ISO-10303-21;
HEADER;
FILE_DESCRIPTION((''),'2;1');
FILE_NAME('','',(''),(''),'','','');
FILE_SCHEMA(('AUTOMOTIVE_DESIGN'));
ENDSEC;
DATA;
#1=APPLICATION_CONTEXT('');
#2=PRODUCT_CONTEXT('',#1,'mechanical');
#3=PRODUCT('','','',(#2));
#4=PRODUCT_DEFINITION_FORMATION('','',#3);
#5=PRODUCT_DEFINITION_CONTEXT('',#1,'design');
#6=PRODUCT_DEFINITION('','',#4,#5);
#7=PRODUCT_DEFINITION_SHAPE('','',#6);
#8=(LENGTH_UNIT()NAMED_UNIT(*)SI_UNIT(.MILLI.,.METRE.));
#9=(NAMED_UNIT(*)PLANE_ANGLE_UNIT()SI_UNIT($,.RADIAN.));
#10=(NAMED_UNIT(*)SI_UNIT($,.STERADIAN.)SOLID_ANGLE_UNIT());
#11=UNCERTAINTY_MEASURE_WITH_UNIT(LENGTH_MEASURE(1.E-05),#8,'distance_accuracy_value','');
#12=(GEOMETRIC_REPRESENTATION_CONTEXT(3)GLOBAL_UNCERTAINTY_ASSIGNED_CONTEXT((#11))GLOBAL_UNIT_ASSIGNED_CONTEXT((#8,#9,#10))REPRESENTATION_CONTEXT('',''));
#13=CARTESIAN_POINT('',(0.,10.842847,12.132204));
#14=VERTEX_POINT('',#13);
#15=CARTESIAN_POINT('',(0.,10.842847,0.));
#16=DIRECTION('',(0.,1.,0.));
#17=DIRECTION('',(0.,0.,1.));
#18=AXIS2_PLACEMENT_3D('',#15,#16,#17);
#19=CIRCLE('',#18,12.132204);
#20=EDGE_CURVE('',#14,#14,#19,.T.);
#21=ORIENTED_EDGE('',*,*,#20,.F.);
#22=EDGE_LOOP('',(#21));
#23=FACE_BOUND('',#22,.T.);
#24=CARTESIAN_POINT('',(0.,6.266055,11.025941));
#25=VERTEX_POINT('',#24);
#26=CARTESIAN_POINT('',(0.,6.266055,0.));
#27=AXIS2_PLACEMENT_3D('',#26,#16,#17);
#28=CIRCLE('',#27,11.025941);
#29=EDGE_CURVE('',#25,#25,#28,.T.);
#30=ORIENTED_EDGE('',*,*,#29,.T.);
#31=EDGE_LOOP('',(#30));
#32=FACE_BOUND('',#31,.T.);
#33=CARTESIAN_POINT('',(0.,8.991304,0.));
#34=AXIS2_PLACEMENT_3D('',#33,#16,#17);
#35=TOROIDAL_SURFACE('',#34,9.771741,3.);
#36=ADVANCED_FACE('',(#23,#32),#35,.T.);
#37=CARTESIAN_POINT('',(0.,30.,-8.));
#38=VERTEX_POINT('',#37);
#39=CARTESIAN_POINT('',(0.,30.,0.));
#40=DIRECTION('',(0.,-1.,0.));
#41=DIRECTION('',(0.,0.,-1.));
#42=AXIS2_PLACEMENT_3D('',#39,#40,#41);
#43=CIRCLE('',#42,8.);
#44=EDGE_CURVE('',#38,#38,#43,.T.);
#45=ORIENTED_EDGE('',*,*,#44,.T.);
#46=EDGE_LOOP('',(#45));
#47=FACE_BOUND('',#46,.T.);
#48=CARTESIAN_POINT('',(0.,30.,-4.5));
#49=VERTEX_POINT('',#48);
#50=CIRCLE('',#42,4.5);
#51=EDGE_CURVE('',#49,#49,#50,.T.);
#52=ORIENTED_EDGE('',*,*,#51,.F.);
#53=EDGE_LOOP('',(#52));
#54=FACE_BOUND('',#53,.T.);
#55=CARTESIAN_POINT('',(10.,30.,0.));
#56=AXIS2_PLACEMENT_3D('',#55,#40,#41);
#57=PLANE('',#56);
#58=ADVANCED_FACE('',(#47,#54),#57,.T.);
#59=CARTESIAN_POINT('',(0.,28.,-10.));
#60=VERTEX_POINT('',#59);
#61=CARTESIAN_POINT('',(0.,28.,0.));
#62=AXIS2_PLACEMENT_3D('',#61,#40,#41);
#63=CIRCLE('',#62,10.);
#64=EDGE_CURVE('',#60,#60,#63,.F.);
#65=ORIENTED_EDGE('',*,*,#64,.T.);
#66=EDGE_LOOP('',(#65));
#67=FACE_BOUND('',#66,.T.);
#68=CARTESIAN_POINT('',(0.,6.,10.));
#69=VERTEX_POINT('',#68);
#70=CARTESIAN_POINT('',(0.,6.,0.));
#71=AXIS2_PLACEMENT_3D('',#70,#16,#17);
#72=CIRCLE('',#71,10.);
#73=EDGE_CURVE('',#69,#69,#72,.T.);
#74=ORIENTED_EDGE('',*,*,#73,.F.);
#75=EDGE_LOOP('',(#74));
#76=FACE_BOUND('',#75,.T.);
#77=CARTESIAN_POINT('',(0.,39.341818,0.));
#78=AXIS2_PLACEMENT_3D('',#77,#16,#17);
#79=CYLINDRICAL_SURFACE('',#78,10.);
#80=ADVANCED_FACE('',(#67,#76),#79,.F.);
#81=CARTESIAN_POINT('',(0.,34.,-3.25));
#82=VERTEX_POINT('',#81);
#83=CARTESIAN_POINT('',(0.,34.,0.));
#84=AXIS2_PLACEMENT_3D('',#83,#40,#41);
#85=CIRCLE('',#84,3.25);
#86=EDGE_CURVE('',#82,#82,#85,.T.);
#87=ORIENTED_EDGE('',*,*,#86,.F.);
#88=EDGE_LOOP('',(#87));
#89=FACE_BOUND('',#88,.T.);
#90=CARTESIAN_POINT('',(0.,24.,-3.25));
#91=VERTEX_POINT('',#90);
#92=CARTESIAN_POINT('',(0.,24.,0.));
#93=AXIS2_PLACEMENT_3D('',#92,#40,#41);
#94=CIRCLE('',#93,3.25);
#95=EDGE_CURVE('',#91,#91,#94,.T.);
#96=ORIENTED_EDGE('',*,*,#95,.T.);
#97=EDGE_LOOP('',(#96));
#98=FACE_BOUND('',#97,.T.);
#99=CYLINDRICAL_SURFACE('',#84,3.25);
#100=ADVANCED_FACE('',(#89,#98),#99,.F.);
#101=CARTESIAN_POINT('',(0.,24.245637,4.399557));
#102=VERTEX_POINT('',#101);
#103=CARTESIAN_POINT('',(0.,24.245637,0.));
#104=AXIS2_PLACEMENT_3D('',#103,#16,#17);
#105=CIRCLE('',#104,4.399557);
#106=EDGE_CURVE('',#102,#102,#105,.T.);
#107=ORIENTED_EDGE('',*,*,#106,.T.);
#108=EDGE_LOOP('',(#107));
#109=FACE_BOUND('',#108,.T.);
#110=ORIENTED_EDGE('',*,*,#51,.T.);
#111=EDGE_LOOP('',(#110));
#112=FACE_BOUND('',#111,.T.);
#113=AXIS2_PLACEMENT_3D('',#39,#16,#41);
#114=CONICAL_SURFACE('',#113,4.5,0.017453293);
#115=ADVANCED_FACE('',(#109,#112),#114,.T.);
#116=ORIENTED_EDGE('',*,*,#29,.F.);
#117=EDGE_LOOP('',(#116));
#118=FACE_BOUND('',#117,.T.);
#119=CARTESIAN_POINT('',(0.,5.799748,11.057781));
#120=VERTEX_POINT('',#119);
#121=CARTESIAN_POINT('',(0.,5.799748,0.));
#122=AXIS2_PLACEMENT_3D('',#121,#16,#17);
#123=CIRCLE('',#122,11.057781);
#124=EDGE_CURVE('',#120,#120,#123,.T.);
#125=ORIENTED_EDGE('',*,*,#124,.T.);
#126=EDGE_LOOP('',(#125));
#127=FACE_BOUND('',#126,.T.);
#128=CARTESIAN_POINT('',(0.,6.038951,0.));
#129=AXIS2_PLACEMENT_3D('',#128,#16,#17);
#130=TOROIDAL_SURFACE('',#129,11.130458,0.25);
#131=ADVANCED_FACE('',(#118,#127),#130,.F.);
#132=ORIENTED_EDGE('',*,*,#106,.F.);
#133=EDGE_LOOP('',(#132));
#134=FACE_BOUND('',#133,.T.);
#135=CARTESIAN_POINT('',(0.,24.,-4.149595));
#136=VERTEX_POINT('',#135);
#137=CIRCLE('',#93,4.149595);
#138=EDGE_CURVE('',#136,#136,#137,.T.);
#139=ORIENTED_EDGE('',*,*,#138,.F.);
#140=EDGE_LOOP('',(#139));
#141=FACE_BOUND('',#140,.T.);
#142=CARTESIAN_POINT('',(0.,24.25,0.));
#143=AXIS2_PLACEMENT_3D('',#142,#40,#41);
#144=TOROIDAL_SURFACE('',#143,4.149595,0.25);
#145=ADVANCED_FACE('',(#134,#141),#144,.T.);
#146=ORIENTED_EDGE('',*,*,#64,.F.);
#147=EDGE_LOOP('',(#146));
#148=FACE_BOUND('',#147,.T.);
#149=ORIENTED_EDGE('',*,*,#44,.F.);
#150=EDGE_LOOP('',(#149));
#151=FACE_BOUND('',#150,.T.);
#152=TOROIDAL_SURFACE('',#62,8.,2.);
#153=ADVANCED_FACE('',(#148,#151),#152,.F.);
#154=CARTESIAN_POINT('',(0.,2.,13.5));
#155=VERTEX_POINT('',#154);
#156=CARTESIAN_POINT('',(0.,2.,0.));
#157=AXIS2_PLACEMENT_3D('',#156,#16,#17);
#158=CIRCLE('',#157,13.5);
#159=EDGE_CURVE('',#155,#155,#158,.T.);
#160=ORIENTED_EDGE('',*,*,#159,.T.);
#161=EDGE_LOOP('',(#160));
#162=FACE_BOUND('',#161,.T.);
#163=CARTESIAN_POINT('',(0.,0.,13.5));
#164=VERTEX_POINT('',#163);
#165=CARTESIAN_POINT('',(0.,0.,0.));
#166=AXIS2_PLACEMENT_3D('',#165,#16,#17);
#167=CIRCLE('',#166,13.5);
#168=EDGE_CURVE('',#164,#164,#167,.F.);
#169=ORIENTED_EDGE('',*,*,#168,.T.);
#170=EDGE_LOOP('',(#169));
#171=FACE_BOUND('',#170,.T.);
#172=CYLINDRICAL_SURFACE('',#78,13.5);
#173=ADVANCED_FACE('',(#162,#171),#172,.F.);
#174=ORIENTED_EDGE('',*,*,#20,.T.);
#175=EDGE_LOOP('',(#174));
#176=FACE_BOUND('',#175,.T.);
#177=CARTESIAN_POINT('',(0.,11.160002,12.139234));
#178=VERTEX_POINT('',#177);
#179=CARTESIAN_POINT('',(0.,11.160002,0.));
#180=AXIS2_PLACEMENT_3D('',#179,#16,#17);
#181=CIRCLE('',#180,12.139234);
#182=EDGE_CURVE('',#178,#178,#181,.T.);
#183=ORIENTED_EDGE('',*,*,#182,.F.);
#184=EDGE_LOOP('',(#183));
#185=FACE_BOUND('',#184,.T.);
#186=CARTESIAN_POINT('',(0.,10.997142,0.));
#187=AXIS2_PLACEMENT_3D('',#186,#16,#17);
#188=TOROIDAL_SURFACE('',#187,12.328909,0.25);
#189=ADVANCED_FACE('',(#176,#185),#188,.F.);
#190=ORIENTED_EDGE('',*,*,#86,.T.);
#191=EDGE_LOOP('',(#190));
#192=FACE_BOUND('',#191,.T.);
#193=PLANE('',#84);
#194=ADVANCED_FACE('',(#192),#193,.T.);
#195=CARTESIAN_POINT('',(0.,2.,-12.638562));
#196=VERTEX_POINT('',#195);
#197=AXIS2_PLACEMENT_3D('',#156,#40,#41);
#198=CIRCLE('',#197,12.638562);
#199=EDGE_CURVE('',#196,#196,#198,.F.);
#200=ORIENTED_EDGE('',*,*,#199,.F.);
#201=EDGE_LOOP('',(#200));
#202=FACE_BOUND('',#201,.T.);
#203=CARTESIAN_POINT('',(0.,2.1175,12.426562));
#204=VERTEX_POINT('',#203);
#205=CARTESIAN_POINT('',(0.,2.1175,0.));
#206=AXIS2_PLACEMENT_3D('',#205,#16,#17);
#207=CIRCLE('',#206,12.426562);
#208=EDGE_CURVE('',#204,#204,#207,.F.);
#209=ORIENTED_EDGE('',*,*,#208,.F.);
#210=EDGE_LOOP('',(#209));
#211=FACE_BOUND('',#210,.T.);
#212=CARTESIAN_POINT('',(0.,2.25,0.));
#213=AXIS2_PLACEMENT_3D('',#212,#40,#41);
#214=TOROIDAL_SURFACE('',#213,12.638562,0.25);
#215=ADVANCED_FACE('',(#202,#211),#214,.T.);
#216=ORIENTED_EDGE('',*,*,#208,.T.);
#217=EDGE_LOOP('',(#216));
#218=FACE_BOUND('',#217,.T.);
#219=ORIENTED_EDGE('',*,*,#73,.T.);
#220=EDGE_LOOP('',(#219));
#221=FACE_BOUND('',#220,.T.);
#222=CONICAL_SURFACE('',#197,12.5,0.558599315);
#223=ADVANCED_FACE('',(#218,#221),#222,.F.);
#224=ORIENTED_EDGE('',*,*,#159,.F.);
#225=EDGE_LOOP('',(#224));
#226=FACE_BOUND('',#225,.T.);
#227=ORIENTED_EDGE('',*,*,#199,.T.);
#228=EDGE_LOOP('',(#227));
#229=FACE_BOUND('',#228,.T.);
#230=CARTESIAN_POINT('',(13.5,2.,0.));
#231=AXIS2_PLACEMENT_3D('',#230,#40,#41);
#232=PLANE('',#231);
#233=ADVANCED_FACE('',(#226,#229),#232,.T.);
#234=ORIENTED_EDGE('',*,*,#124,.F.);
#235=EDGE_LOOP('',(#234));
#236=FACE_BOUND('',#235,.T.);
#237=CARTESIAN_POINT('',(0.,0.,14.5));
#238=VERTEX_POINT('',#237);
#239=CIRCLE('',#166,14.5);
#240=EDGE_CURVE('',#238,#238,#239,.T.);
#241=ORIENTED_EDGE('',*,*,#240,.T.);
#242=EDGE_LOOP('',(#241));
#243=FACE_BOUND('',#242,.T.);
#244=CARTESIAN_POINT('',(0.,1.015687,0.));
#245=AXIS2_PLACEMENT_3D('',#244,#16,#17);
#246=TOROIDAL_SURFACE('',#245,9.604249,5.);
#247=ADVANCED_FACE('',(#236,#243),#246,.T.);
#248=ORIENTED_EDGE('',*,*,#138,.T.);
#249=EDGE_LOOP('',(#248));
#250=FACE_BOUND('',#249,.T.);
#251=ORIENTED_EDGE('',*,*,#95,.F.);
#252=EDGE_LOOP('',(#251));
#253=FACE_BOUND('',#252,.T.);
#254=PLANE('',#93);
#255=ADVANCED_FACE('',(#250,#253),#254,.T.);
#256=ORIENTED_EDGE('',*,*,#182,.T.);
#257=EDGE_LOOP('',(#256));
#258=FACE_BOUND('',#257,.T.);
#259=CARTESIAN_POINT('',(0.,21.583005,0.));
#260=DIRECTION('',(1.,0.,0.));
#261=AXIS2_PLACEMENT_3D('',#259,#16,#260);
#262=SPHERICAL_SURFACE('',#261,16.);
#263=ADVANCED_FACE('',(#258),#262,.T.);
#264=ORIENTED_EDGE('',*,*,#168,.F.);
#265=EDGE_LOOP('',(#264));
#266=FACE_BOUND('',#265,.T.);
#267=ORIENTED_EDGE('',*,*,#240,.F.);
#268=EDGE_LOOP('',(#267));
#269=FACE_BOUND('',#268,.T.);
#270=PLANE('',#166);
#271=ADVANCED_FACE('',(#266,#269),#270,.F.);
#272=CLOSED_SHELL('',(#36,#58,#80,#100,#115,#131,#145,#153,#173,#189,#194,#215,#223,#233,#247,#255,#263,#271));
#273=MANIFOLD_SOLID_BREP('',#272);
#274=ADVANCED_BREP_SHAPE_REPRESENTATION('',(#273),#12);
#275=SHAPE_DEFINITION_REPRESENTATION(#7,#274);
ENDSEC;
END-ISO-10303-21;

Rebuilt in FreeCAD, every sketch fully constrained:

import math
import FreeCAD as App
import Part
import Sketcher
Q = App.Units.Quantity


def edges_at(feature, points):
    """Names of the edges that pass closest to the given points."""
    edges = feature.Shape.Edges
    near = lambda p: min(range(len(edges)), key=lambda i: edges[i].distToShape(Part.Vertex(*p))[0])
    return sorted({f"Edge{near(p) + 1}" for p in points})

doc = App.newDocument("Part")
body = doc.addObject("PartDesign::Body", "Body")

# Sketch on XY plane
sketch1 = body.newObject("Sketcher::SketchObject", "Sketch")
sketch1.AttachmentSupport = (doc.getObject("XY_Plane"), [""])
sketch1.MapMode = "FlatFace"
sketch1.addGeometry(Part.LineSegment(App.Vector(0, 0, 0), App.Vector(14.5, 0, 0)), False)
sketch1.addGeometry(Part.ArcOfCircle(Part.Circle(App.Vector(9.6, 1.02, 0), App.Vector(0, 0, 1), 5), math.radians(-12), math.radians(73)), False)
sketch1.addGeometry(Part.ArcOfCircle(Part.Circle(App.Vector(11.13, 6.04, 0), App.Vector(0, 0, 1), 0.25), math.radians(115), math.radians(253)), False)
sketch1.addGeometry(Part.ArcOfCircle(Part.Circle(App.Vector(9.77, 8.99, 0), App.Vector(0, 0, 1), 3), math.radians(-65), math.radians(38)), False)
sketch1.addGeometry(Part.ArcOfCircle(Part.Circle(App.Vector(12.33, 11, 0), App.Vector(0, 0, 1), 0.25), math.radians(139), math.radians(218)), False)
sketch1.addGeometry(Part.ArcOfCircle(Part.Circle(App.Vector(0, 21.58, 0), App.Vector(0, 0, 1), 16), math.radians(-41), math.radians(90)), False)
sketch1.addGeometry(Part.LineSegment(App.Vector(0, 37.58, 0), App.Vector(0, 0, 0)), False)
sketch1.addConstraint(Sketcher.Constraint("Coincident", 0, 2, 1, 1))
sketch1.addConstraint(Sketcher.Constraint("Tangent", 1, 2, 2, 2))
sketch1.addConstraint(Sketcher.Constraint("Tangent", 2, 1, 3, 1))
sketch1.addConstraint(Sketcher.Constraint("Tangent", 3, 2, 4, 2))
sketch1.addConstraint(Sketcher.Constraint("Tangent", 4, 1, 5, 1))
sketch1.addConstraint(Sketcher.Constraint("Coincident", 5, 2, 6, 1))
sketch1.addConstraint(Sketcher.Constraint("Coincident", 6, 2, 0, 1))
sketch1.addConstraint(Sketcher.Constraint("Horizontal", 0))
sketch1.addConstraint(Sketcher.Constraint("Vertical", 6))
sketch1.addConstraint(Sketcher.Constraint("Coincident", 6, 2, -1, 1))
sketch1.addConstraint(Sketcher.Constraint("Equal", 2, 4))
sketch1.addConstraint(Sketcher.Constraint("PointOnObject", 5, 3, -2))
sketch1.addConstraint(Sketcher.Constraint("Radius", 1, Q("5 mm")))
sketch1.addConstraint(Sketcher.Constraint("Radius", 3, Q("3 mm")))
sketch1.addConstraint(Sketcher.Constraint("Radius", 5, Q("16 mm")))
sketch1.addConstraint(Sketcher.Constraint("Radius", 2, Q("0.25 mm")))
sketch1.addConstraint(Sketcher.Constraint("DistanceX", 0, 1, 0, 2, Q("14.5 mm")))
sketch1.addConstraint(Sketcher.Constraint("DistanceY", -1, 1, 4, 1, Q("11.160002 mm")))
sketch1.addConstraint(Sketcher.Constraint("DistanceY", 3, 3, 5, 3, Q("12.591702 mm")))
sketch1.addConstraint(Sketcher.Constraint("DistanceX", 3, 3, 2, 1, Q("1.254201 mm")))
sketch1.addConstraint(Sketcher.Constraint("DistanceY", 1, 2, 3, 2, Q("5.043099 mm")))
revolution = body.newObject("PartDesign::Revolution", "Revolution")
revolution.Profile = sketch1
revolution.ReferenceAxis = (sketch1, ["V_Axis"])
revolution.Angle = 360

# Sketch on XY plane
sketch2 = body.newObject("Sketcher::SketchObject", "Sketch001")
sketch2.AttachmentSupport = (doc.getObject("XY_Plane"), [""])
sketch2.MapMode = "FlatFace"
sketch2.addGeometry(Part.LineSegment(App.Vector(13.5, -1.9, 0), App.Vector(13.5, 2, 0)), False)
sketch2.addGeometry(Part.LineSegment(App.Vector(13.5, 2, 0), App.Vector(12.5, 2, 0)), False)
sketch2.addGeometry(Part.LineSegment(App.Vector(12.5, 2, 0), App.Vector(10, 6, 0)), False)
sketch2.addGeometry(Part.LineSegment(App.Vector(10, 6, 0), App.Vector(10, 30, 0)), False)
sketch2.addGeometry(Part.LineSegment(App.Vector(10, 30, 0), App.Vector(0, 30, 0)), False)
sketch2.addGeometry(Part.LineSegment(App.Vector(0, 30, 0), App.Vector(0, -1.9, 0)), False)
sketch2.addGeometry(Part.LineSegment(App.Vector(0, -1.9, 0), App.Vector(13.5, -1.9, 0)), False)
sketch2.addConstraint(Sketcher.Constraint("Coincident", 0, 2, 1, 1))
sketch2.addConstraint(Sketcher.Constraint("Coincident", 1, 2, 2, 1))
sketch2.addConstraint(Sketcher.Constraint("Coincident", 2, 2, 3, 1))
sketch2.addConstraint(Sketcher.Constraint("Coincident", 3, 2, 4, 1))
sketch2.addConstraint(Sketcher.Constraint("Coincident", 4, 2, 5, 1))
sketch2.addConstraint(Sketcher.Constraint("Coincident", 5, 2, 6, 1))
sketch2.addConstraint(Sketcher.Constraint("Coincident", 6, 2, 0, 1))
sketch2.addConstraint(Sketcher.Constraint("Vertical", 0))
sketch2.addConstraint(Sketcher.Constraint("Horizontal", 1))
sketch2.addConstraint(Sketcher.Constraint("Vertical", 3))
sketch2.addConstraint(Sketcher.Constraint("Horizontal", 4))
sketch2.addConstraint(Sketcher.Constraint("Vertical", 5))
sketch2.addConstraint(Sketcher.Constraint("Horizontal", 6))
sketch2.addConstraint(Sketcher.Constraint("PointOnObject", 4, 2, -2))
sketch2.addConstraint(Sketcher.Constraint("DistanceX", 1, 2, 1, 1, Q("1 mm")))
sketch2.addConstraint(Sketcher.Constraint("DistanceX", 4, 2, 4, 1, Q("10 mm")))
sketch2.addConstraint(Sketcher.Constraint("DistanceY", 3, 1, 3, 2, Q("24 mm")))
sketch2.addConstraint(Sketcher.Constraint("DistanceX", 6, 1, 6, 2, Q("13.5 mm")))
sketch2.addConstraint(Sketcher.Constraint("DistanceY", -1, 1, 0, 2, Q("2 mm")))
sketch2.addConstraint(Sketcher.Constraint("DistanceY", -1, 1, 2, 2, Q("6 mm")))
sketch2.addConstraint(Sketcher.Constraint("DistanceY", 0, 1, 0, 2, Q("3.861358 mm")))
groove = body.newObject("PartDesign::Groove", "Groove")
groove.Profile = sketch2
groove.ReferenceAxis = (sketch2, ["V_Axis"])
groove.Angle = 360

# Sketch on XZ plane
sketch3 = body.newObject("Sketcher::SketchObject", "Sketch002")
sketch3.AttachmentSupport = (doc.getObject("XZ_Plane"), [""])
sketch3.MapMode = "FlatFace"
sketch3.AttachmentOffset = App.Placement(App.Vector(0, 0, -30), App.Rotation())
sketch3.addGeometry(Part.Circle(App.Vector(0, 0, 0), App.Vector(0, 0, 1), 4.5), False)
sketch3.addConstraint(Sketcher.Constraint("Coincident", 0, 3, -1, 1))
sketch3.addConstraint(Sketcher.Constraint("Diameter", 0, Q("9 mm")))
pad1 = body.newObject("PartDesign::Pad", "Pad")
pad1.Profile = sketch3
pad1.Length = 6
pad1.TaperAngle = -1

# Sketch on XZ plane
sketch4 = body.newObject("Sketcher::SketchObject", "Sketch003")
sketch4.AttachmentSupport = (doc.getObject("XZ_Plane"), [""])
sketch4.MapMode = "FlatFace"
sketch4.AttachmentOffset = App.Placement(App.Vector(0, 0, -24), App.Rotation())
sketch4.addGeometry(Part.Circle(App.Vector(0, 0, 0), App.Vector(0, 0, 1), 3.2), False)
sketch4.addConstraint(Sketcher.Constraint("Coincident", 0, 3, -1, 1))
sketch4.addConstraint(Sketcher.Constraint("Diameter", 0, Q("6.5 mm")))
pocket1 = body.newObject("PartDesign::Pocket", "Pocket")
pocket1.Profile = sketch4
pocket1.Length = 10
doc.recompute()

fillet = body.newObject("PartDesign::Fillet", "Fillet")
fillet.Base = (pocket1, edges_at(pocket1, [(0, 2, -12.5), (-4.395, 24, 0)]))
fillet.Radius = 0.25
doc.recompute()

fillet2 = body.newObject("PartDesign::Fillet", "Fillet001")
fillet2.Base = (fillet, edges_at(fillet, [(0, 30, -10)]))
fillet2.Radius = 2

doc.recompute()
